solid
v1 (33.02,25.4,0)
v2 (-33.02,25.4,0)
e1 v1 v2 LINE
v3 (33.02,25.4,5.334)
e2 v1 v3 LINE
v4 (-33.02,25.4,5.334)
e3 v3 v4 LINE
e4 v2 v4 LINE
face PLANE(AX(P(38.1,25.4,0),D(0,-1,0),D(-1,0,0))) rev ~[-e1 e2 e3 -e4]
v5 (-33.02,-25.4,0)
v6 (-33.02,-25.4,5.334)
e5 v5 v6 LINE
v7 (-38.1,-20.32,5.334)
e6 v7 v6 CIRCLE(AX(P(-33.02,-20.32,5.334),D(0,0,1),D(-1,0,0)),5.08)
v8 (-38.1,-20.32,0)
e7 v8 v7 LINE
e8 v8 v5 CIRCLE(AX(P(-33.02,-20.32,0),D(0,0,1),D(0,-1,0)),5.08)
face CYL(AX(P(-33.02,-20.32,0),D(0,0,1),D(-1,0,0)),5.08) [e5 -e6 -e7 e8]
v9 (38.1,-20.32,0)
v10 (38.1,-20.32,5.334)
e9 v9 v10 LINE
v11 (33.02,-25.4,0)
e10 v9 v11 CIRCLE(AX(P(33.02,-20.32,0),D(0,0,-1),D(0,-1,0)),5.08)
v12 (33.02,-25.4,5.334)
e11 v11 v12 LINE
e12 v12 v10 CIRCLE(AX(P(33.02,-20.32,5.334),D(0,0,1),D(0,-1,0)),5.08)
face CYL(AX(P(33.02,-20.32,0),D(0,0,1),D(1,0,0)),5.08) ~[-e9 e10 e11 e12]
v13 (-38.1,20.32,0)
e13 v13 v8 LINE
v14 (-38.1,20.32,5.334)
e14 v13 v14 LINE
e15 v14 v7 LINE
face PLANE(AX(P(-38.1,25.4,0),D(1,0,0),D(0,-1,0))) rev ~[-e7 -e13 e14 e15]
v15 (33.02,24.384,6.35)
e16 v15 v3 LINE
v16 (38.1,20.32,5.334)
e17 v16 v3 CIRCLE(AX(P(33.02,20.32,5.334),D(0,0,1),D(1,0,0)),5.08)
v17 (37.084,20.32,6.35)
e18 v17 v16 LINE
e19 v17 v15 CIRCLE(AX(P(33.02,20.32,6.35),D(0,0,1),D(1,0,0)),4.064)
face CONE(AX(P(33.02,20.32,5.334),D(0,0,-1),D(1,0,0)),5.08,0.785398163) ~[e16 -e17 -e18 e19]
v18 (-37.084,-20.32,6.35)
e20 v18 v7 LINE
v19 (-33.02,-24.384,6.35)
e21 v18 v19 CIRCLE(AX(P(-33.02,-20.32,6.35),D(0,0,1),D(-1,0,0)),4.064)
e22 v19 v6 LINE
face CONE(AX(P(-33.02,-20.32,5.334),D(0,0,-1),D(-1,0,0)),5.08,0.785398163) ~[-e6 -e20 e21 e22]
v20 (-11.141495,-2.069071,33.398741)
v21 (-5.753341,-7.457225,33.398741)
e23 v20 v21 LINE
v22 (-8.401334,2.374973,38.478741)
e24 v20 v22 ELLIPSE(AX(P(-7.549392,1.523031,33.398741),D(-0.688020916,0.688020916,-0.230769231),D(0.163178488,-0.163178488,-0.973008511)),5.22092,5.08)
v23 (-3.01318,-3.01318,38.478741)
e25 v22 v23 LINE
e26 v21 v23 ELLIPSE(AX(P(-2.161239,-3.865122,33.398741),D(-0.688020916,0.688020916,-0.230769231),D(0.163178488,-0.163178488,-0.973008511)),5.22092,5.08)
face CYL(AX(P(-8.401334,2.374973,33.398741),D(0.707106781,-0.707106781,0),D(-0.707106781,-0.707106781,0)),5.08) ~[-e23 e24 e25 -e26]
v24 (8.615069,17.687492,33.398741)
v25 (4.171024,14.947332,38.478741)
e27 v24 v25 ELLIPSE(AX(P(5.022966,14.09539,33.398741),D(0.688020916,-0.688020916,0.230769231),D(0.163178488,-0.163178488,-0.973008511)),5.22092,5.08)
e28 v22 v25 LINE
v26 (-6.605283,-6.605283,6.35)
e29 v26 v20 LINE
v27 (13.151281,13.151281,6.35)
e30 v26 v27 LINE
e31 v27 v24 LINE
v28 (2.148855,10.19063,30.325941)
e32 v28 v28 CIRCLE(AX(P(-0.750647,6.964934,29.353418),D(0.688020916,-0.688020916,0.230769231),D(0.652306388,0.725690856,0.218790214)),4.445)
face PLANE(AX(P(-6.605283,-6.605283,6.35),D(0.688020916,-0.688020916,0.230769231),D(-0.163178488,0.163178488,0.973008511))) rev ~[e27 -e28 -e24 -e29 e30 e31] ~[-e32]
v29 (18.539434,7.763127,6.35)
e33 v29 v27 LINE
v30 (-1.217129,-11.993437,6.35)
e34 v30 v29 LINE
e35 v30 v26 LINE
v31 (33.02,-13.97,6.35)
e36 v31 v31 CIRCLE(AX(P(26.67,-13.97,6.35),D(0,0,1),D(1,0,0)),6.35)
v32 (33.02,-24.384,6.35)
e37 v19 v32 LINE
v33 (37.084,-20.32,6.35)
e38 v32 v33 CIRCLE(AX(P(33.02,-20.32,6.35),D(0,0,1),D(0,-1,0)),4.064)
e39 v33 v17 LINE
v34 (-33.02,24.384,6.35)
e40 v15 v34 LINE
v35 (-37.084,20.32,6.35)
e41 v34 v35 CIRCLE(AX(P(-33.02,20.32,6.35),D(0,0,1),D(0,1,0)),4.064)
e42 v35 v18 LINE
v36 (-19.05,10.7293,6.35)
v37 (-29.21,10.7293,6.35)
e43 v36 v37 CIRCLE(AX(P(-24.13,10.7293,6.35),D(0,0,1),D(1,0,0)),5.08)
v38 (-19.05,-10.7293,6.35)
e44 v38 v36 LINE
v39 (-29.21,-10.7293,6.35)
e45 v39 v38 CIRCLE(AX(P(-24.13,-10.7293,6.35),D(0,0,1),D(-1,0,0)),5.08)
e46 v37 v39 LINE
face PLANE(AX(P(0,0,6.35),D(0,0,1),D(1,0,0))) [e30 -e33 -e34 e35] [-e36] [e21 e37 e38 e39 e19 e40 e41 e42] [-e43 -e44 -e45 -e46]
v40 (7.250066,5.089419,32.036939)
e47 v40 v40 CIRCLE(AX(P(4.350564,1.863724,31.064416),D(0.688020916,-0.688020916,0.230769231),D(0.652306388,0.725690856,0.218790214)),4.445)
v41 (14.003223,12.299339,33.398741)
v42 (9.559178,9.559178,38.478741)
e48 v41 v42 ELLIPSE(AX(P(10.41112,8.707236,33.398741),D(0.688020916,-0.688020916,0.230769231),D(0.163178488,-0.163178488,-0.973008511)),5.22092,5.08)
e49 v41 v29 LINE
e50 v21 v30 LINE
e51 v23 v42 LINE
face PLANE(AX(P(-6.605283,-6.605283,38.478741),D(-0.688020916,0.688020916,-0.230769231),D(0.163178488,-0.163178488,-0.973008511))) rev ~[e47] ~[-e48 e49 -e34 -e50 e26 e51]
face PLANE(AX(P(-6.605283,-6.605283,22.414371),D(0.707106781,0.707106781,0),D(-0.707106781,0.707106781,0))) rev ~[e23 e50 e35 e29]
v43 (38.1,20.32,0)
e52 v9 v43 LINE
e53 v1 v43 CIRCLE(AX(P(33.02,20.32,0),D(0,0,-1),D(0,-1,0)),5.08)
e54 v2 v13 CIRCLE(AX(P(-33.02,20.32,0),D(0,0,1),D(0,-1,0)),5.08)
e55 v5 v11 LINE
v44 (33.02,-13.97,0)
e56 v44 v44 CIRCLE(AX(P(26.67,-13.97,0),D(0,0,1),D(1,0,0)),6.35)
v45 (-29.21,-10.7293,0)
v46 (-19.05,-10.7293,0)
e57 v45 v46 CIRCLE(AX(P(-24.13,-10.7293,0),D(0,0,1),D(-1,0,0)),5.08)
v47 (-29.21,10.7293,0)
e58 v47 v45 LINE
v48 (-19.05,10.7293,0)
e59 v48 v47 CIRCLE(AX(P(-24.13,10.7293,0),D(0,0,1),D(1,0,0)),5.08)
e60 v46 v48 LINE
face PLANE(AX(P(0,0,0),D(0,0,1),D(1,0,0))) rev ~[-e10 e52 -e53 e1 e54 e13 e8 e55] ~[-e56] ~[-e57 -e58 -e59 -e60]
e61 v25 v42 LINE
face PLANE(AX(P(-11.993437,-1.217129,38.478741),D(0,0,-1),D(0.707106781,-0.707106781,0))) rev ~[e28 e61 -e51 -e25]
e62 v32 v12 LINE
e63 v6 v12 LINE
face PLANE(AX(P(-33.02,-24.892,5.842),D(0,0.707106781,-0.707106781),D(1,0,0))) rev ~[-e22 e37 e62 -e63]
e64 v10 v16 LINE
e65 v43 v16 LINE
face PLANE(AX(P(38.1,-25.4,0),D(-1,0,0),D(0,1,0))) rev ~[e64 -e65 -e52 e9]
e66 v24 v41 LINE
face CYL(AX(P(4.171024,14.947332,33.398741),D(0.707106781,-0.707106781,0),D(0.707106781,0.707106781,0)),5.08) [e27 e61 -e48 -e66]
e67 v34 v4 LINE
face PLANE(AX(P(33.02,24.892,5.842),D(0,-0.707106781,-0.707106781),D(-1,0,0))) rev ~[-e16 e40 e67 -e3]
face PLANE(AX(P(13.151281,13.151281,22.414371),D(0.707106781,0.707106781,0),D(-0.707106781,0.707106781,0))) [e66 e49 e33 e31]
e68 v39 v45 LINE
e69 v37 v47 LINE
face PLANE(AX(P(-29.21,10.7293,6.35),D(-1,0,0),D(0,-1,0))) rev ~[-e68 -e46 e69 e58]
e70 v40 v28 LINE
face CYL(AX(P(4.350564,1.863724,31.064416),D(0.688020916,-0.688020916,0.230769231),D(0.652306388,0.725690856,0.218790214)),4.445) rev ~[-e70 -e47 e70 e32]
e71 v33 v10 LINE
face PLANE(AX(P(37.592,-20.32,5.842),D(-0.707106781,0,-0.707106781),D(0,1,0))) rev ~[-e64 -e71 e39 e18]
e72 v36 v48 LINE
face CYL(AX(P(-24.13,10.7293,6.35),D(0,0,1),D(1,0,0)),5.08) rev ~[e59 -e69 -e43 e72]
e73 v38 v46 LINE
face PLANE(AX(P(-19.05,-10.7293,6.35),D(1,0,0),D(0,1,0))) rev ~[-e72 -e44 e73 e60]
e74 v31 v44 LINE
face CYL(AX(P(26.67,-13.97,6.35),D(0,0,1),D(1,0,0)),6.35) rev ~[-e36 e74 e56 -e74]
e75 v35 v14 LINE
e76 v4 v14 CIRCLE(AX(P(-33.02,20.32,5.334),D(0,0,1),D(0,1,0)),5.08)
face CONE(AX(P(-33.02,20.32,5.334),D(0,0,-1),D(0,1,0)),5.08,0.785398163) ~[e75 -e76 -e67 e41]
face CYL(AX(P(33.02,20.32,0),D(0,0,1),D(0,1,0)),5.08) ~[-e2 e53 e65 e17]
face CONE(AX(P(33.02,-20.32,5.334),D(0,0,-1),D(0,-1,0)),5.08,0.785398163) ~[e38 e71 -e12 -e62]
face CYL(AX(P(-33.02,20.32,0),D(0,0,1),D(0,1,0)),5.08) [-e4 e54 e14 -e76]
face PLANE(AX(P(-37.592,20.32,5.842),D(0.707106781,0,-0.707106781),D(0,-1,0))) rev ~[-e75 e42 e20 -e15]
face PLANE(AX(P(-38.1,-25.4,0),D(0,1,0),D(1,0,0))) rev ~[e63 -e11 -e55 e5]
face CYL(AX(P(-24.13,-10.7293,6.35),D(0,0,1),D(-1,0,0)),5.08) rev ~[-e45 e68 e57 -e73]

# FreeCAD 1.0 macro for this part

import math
import FreeCAD as App
import Part
import Sketcher
from FreeCAD import Vector
Q = App.Units.Quantity


def edges_at(feature, points):
    """Names of the edges that pass closest to the given points."""
    edges = feature.Shape.Edges
    near = lambda p: min(range(len(edges)), key=lambda i: edges[i].distToShape(Part.Vertex(*p))[0])
    return sorted({f"Edge{near(p) + 1}" for p in points})


def add_polygon(sketch, points):
    """Adds a closed chain of lines whose ends are joined by coincident constraints."""
    first, n = sketch.GeometryCount, len(points)
    for a, b in zip(points, points[1:] + points[:1]):
        sketch.addGeometry(Part.LineSegment(App.Vector(*a, 0), App.Vector(*b, 0)), False)
    for i in range(n):
        sketch.addConstraint(Sketcher.Constraint("Coincident", first + i, 2, first + (i + 1) % n, 1))

doc = App.newDocument("Part")
body = doc.addObject("PartDesign::Body", "Body")

sketch1 = body.newObject("Sketcher::SketchObject", "Sketch")
sketch1.AttachmentSupport = (doc.getObject("XY_Plane"), [""])
sketch1.MapMode = "FlatFace"
add_polygon(sketch1, [(38.1, 25.4), (-38.1, 25.4), (-38.1, -25.4), (38.1, -25.4)])
sketch1.addConstraint(Sketcher.Constraint("Horizontal", 0))
sketch1.addConstraint(Sketcher.Constraint("Vertical", 1))
sketch1.addConstraint(Sketcher.Constraint("Horizontal", 2))
sketch1.addConstraint(Sketcher.Constraint("Vertical", 3))
sketch1.addConstraint(Sketcher.Constraint("Symmetric", 0, 2, 2, 2, -1, 1))
sketch1.addConstraint(Sketcher.Constraint("DistanceX", 0, 2, 0, 1, Q("3 in")))
sketch1.addConstraint(Sketcher.Constraint("DistanceY", 1, 2, 1, 1, Q("2 in")))
pad1 = body.newObject("PartDesign::Pad", "Pad")
pad1.Profile = sketch1
pad1.Length = Q("0.25 in")

sketch2 = body.newObject("Sketcher::SketchObject", "Sketch001")
sketch2.AttachmentSupport = (doc.getObject("XY_Plane"), [""])
sketch2.MapMode = "FlatFace"
sketch2.AttachmentOffset = App.Placement(Vector(0, 0, 0.25 * 25.4), App.Rotation())
sketch2.addGeometry(Part.ArcOfCircle(Part.Circle(Vector(-24.13, 10.7293, 0), Vector(0, 0, 1), 5.08), math.radians(0), math.radians(180)), False)
sketch2.addGeometry(Part.LineSegment(Vector(-29.21, 10.7293, 0), Vector(-29.21, -10.7293, 0)), False)
sketch2.addGeometry(Part.ArcOfCircle(Part.Circle(Vector(-24.13, -10.7293, 0), Vector(0, 0, 1), 5.08), math.radians(180), math.radians(360)), False)
sketch2.addGeometry(Part.LineSegment(Vector(-19.05, -10.7293, 0), Vector(-19.05, 10.7293, 0)), False)
sketch2.addGeometry(Part.Circle(Vector(26.67, -13.97, 0), Vector(0, 0, 1), 6.35), False)
sketch2.addConstraint(Sketcher.Constraint("Tangent", 0, 2, 1, 1))
sketch2.addConstraint(Sketcher.Constraint("Tangent", 1, 2, 2, 1))
sketch2.addConstraint(Sketcher.Constraint("Tangent", 2, 2, 3, 1))
sketch2.addConstraint(Sketcher.Constraint("Tangent", 3, 2, 0, 1))
sketch2.addConstraint(Sketcher.Constraint("Vertical", 1))
sketch2.addConstraint(Sketcher.Constraint("Vertical", 3))
sketch2.addConstraint(Sketcher.Constraint("Diameter", 4, Q("0.5 in")))
sketch2.addConstraint(Sketcher.Constraint("Radius", 0, Q("0.2 in")))
sketch2.addConstraint(Sketcher.Constraint("DistanceX", 2, 3, 4, 3, Q("2 in")))
sketch2.addConstraint(Sketcher.Constraint("DistanceX", 0, 3, -1, 1, Q("0.95 in")))
sketch2.addConstraint(Sketcher.Constraint("DistanceY", 4, 3, -1, 1, Q("0.55 in")))
sketch2.addConstraint(Sketcher.Constraint("DistanceY", 1, 2, 1, 1, 21.4586))
sketch2.addConstraint(Sketcher.Constraint("DistanceY", -1, 1, 0, 3, 10.7293))
pocket1 = body.newObject("PartDesign::Pocket", "Pocket")
pocket1.Profile = sketch2
pocket1.Length = Q("1 in")

sketch3 = body.newObject("Sketcher::SketchObject", "Sketch002")
sketch3.Placement = App.Placement(Vector(-6.605283, -6.605283, 0), App.Rotation(Vector(-0.707106781, 0.707106781, 0), Vector(0, 0, 0.999999999), Vector(0.707106781, 0.707106781, 0), "ZXY"))
add_polygon(sketch3, [(-7.62, 6.35), (0, 6.35), (7.62, 38.478741), (0, 38.478741)])
sketch3.addConstraint(Sketcher.Constraint("Horizontal", 0))
sketch3.addConstraint(Sketcher.Constraint("Horizontal", 2))
sketch3.addConstraint(Sketcher.Constraint("PointOnObject", 0, 2, -2))
sketch3.addConstraint(Sketcher.Constraint("PointOnObject", 2, 2, -2))
sketch3.addConstraint(Sketcher.Constraint("Parallel", 1, 3))
sketch3.addConstraint(Sketcher.Constraint("DistanceX", 0, 1, 0, 2, Q("0.3 in")))
sketch3.addConstraint(Sketcher.Constraint("Distance", 1, Q("1.3 in")))
sketch3.addConstraint(Sketcher.Constraint("DistanceY", -1, 1, 0, 2, Q("0.25 in")))
pad2 = body.newObject("PartDesign::Pad", "Pad001")
pad2.Profile = sketch3
pad2.Length = Q("1.1 in")
doc.recompute()

fillet = body.newObject("PartDesign::Fillet", "Fillet")
fillet.Base = (pad2, edges_at(pad2, [(-9.299, -3.911, 38.479), (10.457, 15.845, 38.479)]))
fillet.Radius = Q("0.2 in")

sketch4 = body.newObject("Sketcher::SketchObject", "Sketch003")
sketch4.Placement = App.Placement(Vector(6.109426, -6.109426, 2.049164), App.Rotation(Vector(0.652306388, 0.725690856, 0.218790214), Vector(-0.317999364, 0, 0.948090926), Vector(0.688020916, -0.688020916, 0.230769231), "ZXY"))
sketch4.addGeometry(Part.Circle(Vector(10.986978, 28.068415, 0), Vector(0, 0, 1), 4.445), False)
sketch4.addConstraint(Sketcher.Constraint("Diameter", 0, Q("0.35 in")))
sketch4.addConstraint(Sketcher.Constraint("DistanceX", -1, 1, 0, 3, 10.986978))
sketch4.addConstraint(Sketcher.Constraint("DistanceY", -1, 1, 0, 3, 28.068415))
pocket2 = body.newObject("PartDesign::Pocket", "Pocket001")
pocket2.Profile = sketch4
pocket2.Length = Q("1 in")
doc.recompute()

fillet2 = body.newObject("PartDesign::Fillet", "Fillet001")
fillet2.Base = (pocket2, edges_at(pocket2, [
    (38.1, -25.4, 3.175),
    (38.1, 25.4, 3.175),
    (-38.1, -25.4, 3.175),
    (-38.1, 25.4, 3.175),
]))
fillet2.Radius = Q("0.2 in")
doc.recompute()

chamfer = body.newObject("PartDesign::Chamfer", "Chamfer")
chamfer.Base = (fillet2, edges_at(fillet2, [
    (0, -25.4, 6.35),
    (38.1, 0, 6.35),
    (36.612, -23.912, 6.35),
    (36.612, 23.912, 6.35),
    (0, 25.4, 6.35),
    (-36.612, 23.912, 6.35),
    (-38.1, 0, 6.35),
    (-36.612, -23.912, 6.35),
]))
chamfer.Size = Q("0.04 in")

doc.recompute()
